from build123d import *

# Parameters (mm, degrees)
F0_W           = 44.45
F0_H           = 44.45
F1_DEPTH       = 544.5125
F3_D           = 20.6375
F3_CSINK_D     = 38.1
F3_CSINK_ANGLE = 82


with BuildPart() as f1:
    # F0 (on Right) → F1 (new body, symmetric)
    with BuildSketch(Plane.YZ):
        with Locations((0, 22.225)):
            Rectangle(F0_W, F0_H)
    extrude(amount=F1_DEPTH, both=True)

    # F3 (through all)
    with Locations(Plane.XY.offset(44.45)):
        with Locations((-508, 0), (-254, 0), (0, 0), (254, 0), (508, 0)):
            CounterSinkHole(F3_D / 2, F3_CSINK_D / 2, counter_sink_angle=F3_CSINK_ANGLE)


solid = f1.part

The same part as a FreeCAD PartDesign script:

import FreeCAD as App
import Part
import Sketcher
from FreeCAD import Vector
Q = App.Units.Quantity


def add_polygon(sketch, points):
    """Adds a closed chain of lines whose ends are joined by coincident constraints."""
    first, n = sketch.GeometryCount, len(points)
    for a, b in zip(points, points[1:] + points[:1]):
        sketch.addGeometry(Part.LineSegment(App.Vector(*a, 0), App.Vector(*b, 0)), False)
    for i in range(n):
        sketch.addConstraint(Sketcher.Constraint("Coincident", first + i, 2, first + (i + 1) % n, 1))

doc = App.newDocument("Part")
body = doc.addObject("PartDesign::Body", "Body")

# Sketch on YZ plane
sketch1 = body.newObject("Sketcher::SketchObject", "Sketch")
sketch1.AttachmentSupport = (doc.getObject("YZ_Plane"), [""])
sketch1.MapMode = "FlatFace"
add_polygon(sketch1, [(-22, 44), (-22, 0), (22, 0), (22, 44)])  # lines 0-3
sketch1.addConstraint(Sketcher.Constraint("Vertical", 0))
sketch1.addConstraint(Sketcher.Constraint("Horizontal", 1))
sketch1.addConstraint(Sketcher.Constraint("Vertical", 2))
sketch1.addConstraint(Sketcher.Constraint("Horizontal", 3))
sketch1.addConstraint(Sketcher.Constraint("Symmetric", 0, 2, 1, 2, -1, 1))
sketch1.addConstraint(Sketcher.Constraint("Equal", 3, 0))
sketch1.addConstraint(Sketcher.Constraint("DistanceX", 1, 1, 1, 2, Q("1.75 in")))
pad1 = body.newObject("PartDesign::Pad", "Pad")
pad1.Profile = sketch1
pad1.Length = Q("42.875 in")
pad1.Midplane = True

# Sketch on XY plane
sketch2 = body.newObject("Sketcher::SketchObject", "Sketch001")
sketch2.AttachmentSupport = (doc.getObject("XY_Plane"), [""])
sketch2.MapMode = "FlatFace"
sketch2.AttachmentOffset = App.Placement(Vector(0, 0, 1.75 * 25.4), App.Rotation())
sketch2.addGeometry(Part.Circle(Vector(-508, 0, 0), Vector(0, 0, 1), 10), False)
sketch2.addGeometry(Part.Circle(Vector(-254, 0, 0), Vector(0, 0, 1), 10), False)
sketch2.addGeometry(Part.Circle(Vector(0, 0, 0), Vector(0, 0, 1), 10), False)
sketch2.addGeometry(Part.Circle(Vector(254, 0, 0), Vector(0, 0, 1), 10), False)
sketch2.addGeometry(Part.Circle(Vector(508, 0, 0), Vector(0, 0, 1), 10), False)
sketch2.addConstraint(Sketcher.Constraint("Coincident", 2, 3, -1, 1))
sketch2.addConstraint(Sketcher.Constraint("Equal", 0, 1))
sketch2.addConstraint(Sketcher.Constraint("Equal", 1, 2))
sketch2.addConstraint(Sketcher.Constraint("Equal", 2, 3))
sketch2.addConstraint(Sketcher.Constraint("Equal", 3, 4))
sketch2.addConstraint(Sketcher.Constraint("Symmetric", 1, 3, 3, 3, -1, 1))
sketch2.addConstraint(Sketcher.Constraint("Symmetric", 0, 3, 4, 3, -1, 1))
sketch2.addConstraint(Sketcher.Constraint("PointOnObject", 0, 3, -1))
sketch2.addConstraint(Sketcher.Constraint("PointOnObject", 1, 3, -1))
sketch2.addConstraint(Sketcher.Constraint("Diameter", 0, Q("0.8125 in")))
sketch2.addConstraint(Sketcher.Constraint("DistanceX", 0, 3, -1, 1, Q("20 in")))
sketch2.addConstraint(Sketcher.Constraint("DistanceX", 1, 3, -1, 1, Q("10 in")))
doc.recompute()
hole = body.newObject("PartDesign::Hole", "Hole")
hole.Profile = sketch2
hole.ThreadType = "None"
hole.Diameter = Q("0.8125 in")
hole.DepthType = "ThroughAll"
hole.HoleCutType = "Countersink"
hole.HoleCutDiameter = Q("1.5 in")
hole.HoleCutCountersinkAngle = 82

doc.recompute()
